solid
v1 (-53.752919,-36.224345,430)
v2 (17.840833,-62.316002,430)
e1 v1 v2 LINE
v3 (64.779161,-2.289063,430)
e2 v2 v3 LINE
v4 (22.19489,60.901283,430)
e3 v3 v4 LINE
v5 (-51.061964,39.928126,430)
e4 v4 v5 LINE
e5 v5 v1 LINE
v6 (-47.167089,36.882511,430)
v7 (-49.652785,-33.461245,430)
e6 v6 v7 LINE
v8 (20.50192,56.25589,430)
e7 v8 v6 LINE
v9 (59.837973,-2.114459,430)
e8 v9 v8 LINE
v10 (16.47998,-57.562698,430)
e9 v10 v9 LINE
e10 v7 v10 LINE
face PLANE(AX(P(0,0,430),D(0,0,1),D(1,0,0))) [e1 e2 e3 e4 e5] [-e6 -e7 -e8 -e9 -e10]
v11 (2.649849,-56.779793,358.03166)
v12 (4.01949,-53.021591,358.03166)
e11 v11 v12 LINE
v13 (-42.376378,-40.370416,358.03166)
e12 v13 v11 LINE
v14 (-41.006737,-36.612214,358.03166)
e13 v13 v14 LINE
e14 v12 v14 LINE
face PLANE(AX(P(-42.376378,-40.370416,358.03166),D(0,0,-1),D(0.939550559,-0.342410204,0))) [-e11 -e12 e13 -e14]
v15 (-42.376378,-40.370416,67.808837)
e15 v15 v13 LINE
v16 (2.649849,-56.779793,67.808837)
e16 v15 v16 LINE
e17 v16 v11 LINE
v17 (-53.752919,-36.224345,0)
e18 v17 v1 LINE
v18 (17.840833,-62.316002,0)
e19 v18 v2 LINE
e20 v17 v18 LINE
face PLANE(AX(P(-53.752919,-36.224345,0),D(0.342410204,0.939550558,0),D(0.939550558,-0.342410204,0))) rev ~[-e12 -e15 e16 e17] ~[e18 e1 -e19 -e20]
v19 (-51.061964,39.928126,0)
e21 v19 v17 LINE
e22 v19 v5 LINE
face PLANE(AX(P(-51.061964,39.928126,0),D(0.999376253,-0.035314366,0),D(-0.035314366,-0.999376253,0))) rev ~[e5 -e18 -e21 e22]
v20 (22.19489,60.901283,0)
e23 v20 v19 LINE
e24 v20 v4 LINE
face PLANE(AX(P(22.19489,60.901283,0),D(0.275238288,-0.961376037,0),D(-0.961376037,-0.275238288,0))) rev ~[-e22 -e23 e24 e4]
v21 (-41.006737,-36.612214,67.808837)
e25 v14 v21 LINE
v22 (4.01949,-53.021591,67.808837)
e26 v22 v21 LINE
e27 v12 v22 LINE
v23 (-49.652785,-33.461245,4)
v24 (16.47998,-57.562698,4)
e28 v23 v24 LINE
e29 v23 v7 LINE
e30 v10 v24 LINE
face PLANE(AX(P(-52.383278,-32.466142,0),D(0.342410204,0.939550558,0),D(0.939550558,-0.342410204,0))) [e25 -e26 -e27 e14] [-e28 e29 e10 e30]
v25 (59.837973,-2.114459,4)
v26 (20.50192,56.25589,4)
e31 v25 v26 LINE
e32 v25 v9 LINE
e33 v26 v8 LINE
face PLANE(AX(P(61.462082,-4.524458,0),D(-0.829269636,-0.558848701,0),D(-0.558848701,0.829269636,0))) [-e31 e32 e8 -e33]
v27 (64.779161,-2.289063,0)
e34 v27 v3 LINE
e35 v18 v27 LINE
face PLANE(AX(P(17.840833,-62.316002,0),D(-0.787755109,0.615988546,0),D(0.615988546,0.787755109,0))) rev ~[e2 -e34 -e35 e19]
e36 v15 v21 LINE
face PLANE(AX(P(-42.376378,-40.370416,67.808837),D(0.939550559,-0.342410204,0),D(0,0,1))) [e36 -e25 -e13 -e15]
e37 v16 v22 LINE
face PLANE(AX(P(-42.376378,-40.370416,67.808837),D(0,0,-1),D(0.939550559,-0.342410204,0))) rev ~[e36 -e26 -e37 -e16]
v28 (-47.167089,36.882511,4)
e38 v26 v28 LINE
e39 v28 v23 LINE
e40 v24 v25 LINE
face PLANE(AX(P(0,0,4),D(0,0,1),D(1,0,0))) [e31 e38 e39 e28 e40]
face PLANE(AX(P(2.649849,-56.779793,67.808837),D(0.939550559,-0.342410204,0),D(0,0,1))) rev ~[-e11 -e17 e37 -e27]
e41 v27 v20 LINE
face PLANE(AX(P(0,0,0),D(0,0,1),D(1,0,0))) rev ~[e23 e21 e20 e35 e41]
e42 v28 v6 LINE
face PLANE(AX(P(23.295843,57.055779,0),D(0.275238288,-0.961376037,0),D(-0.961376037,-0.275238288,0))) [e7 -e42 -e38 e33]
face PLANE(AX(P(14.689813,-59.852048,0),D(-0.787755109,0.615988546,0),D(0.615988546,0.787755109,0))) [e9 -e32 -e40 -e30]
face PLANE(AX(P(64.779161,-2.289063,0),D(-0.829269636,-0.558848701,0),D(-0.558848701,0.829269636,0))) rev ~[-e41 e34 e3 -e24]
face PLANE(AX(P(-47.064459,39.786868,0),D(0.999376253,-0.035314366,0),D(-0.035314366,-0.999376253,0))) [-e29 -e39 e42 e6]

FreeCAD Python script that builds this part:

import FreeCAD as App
import Part
import Sketcher
Q = App.Units.Quantity


def faces_at(feature, points):
    """Names of the faces that lie closest to the given points."""
    faces = feature.Shape.Faces
    near = lambda p: min(range(len(faces)), key=lambda i: faces[i].distToShape(Part.Vertex(*p))[0])
    return sorted({f"Face{near(p) + 1}" for p in points})


def add_polygon(sketch, points):
    """Adds a closed chain of lines whose ends are joined by coincident constraints."""
    first, n = sketch.GeometryCount, len(points)
    for a, b in zip(points, points[1:] + points[:1]):
        sketch.addGeometry(Part.LineSegment(App.Vector(*a, 0), App.Vector(*b, 0)), False)
    for i in range(n):
        sketch.addConstraint(Sketcher.Constraint("Coincident", first + i, 2, first + (i + 1) % n, 1))

doc = App.newDocument("Part")
body = doc.addObject("PartDesign::Body", "Body")

sketch1 = body.newObject("Sketcher::SketchObject", "Sketch")
sketch1.AttachmentSupport = (doc.getObject("XY_Plane"), [""])
sketch1.MapMode = "FlatFace"
add_polygon(sketch1, [(18, -62), (65, -2), (22, 61), (-51, 40), (-54, -36)])
sketch1.addConstraint(Sketcher.Constraint("Equal", 0, 1))
sketch1.addConstraint(Sketcher.Constraint("Equal", 1, 2))
sketch1.addConstraint(Sketcher.Constraint("Equal", 2, 3))
sketch1.addConstraint(Sketcher.Constraint("Equal", 3, 4))
sketch1.addConstraint(Sketcher.Constraint("Distance", 0, Q("76.2 mm")))
sketch1.addConstraint(Sketcher.Constraint("DistanceX", -1, 1, 0, 2, Q("64.779161 mm")))
sketch1.addConstraint(Sketcher.Constraint("DistanceX", -1, 1, 1, 2, Q("22.19489 mm")))
sketch1.addConstraint(Sketcher.Constraint("DistanceX", 3, 2, -1, 1, Q("53.752919 mm")))
sketch1.addConstraint(Sketcher.Constraint("DistanceY", 0, 2, 2, 2, Q("42.217189 mm")))
sketch1.addConstraint(Sketcher.Constraint("DistanceY", 0, 2, -1, 1, Q("2.289063 mm")))
pad1 = body.newObject("PartDesign::Pad", "Pad")
pad1.Profile = sketch1
pad1.Length = 430
doc.recompute()

thickness = body.newObject("PartDesign::Thickness", "Thickness")
thickness.Base = (pad1, faces_at(pad1, [(5.513, -0.707, 430)]))
thickness.Value = 4
thickness.Reversed = True
thickness.Join = "Arc"

sketch2 = body.newObject("Sketcher::SketchObject", "Sketch001")
sketch2.Placement = App.Placement(App.Vector(-17.956043, -49.270173, 0), App.Rotation(App.Vector(0.939550559, -0.342410204, 0), App.Vector(0, 0, 1.000000001), App.Vector(-0.342410204, -0.939550559, 0), "ZXY"))
add_polygon(sketch2, [(-26, 358), (-26, 68), (22, 68), (22, 358)])
sketch2.addConstraint(Sketcher.Constraint("Vertical", 0))
sketch2.addConstraint(Sketcher.Constraint("Horizontal", 1))
sketch2.addConstraint(Sketcher.Constraint("Vertical", 2))
sketch2.addConstraint(Sketcher.Constraint("Horizontal", 3))
sketch2.addConstraint(Sketcher.Constraint("DistanceX", 1, 1, 1, 2, Q("47.923155 mm")))
sketch2.addConstraint(Sketcher.Constraint("DistanceY", 0, 2, 0, 1, Q("290.222824 mm")))
sketch2.addConstraint(Sketcher.Constraint("DistanceX", -1, 1, 1, 2, Q("21.931648 mm")))
sketch2.addConstraint(Sketcher.Constraint("DistanceY", -1, 1, 2, 2, Q("358.031661 mm")))
pocket1 = body.newObject("PartDesign::Pocket", "Pocket")
pocket1.Profile = sketch2
pocket1.Length = 12.7

doc.recompute()
